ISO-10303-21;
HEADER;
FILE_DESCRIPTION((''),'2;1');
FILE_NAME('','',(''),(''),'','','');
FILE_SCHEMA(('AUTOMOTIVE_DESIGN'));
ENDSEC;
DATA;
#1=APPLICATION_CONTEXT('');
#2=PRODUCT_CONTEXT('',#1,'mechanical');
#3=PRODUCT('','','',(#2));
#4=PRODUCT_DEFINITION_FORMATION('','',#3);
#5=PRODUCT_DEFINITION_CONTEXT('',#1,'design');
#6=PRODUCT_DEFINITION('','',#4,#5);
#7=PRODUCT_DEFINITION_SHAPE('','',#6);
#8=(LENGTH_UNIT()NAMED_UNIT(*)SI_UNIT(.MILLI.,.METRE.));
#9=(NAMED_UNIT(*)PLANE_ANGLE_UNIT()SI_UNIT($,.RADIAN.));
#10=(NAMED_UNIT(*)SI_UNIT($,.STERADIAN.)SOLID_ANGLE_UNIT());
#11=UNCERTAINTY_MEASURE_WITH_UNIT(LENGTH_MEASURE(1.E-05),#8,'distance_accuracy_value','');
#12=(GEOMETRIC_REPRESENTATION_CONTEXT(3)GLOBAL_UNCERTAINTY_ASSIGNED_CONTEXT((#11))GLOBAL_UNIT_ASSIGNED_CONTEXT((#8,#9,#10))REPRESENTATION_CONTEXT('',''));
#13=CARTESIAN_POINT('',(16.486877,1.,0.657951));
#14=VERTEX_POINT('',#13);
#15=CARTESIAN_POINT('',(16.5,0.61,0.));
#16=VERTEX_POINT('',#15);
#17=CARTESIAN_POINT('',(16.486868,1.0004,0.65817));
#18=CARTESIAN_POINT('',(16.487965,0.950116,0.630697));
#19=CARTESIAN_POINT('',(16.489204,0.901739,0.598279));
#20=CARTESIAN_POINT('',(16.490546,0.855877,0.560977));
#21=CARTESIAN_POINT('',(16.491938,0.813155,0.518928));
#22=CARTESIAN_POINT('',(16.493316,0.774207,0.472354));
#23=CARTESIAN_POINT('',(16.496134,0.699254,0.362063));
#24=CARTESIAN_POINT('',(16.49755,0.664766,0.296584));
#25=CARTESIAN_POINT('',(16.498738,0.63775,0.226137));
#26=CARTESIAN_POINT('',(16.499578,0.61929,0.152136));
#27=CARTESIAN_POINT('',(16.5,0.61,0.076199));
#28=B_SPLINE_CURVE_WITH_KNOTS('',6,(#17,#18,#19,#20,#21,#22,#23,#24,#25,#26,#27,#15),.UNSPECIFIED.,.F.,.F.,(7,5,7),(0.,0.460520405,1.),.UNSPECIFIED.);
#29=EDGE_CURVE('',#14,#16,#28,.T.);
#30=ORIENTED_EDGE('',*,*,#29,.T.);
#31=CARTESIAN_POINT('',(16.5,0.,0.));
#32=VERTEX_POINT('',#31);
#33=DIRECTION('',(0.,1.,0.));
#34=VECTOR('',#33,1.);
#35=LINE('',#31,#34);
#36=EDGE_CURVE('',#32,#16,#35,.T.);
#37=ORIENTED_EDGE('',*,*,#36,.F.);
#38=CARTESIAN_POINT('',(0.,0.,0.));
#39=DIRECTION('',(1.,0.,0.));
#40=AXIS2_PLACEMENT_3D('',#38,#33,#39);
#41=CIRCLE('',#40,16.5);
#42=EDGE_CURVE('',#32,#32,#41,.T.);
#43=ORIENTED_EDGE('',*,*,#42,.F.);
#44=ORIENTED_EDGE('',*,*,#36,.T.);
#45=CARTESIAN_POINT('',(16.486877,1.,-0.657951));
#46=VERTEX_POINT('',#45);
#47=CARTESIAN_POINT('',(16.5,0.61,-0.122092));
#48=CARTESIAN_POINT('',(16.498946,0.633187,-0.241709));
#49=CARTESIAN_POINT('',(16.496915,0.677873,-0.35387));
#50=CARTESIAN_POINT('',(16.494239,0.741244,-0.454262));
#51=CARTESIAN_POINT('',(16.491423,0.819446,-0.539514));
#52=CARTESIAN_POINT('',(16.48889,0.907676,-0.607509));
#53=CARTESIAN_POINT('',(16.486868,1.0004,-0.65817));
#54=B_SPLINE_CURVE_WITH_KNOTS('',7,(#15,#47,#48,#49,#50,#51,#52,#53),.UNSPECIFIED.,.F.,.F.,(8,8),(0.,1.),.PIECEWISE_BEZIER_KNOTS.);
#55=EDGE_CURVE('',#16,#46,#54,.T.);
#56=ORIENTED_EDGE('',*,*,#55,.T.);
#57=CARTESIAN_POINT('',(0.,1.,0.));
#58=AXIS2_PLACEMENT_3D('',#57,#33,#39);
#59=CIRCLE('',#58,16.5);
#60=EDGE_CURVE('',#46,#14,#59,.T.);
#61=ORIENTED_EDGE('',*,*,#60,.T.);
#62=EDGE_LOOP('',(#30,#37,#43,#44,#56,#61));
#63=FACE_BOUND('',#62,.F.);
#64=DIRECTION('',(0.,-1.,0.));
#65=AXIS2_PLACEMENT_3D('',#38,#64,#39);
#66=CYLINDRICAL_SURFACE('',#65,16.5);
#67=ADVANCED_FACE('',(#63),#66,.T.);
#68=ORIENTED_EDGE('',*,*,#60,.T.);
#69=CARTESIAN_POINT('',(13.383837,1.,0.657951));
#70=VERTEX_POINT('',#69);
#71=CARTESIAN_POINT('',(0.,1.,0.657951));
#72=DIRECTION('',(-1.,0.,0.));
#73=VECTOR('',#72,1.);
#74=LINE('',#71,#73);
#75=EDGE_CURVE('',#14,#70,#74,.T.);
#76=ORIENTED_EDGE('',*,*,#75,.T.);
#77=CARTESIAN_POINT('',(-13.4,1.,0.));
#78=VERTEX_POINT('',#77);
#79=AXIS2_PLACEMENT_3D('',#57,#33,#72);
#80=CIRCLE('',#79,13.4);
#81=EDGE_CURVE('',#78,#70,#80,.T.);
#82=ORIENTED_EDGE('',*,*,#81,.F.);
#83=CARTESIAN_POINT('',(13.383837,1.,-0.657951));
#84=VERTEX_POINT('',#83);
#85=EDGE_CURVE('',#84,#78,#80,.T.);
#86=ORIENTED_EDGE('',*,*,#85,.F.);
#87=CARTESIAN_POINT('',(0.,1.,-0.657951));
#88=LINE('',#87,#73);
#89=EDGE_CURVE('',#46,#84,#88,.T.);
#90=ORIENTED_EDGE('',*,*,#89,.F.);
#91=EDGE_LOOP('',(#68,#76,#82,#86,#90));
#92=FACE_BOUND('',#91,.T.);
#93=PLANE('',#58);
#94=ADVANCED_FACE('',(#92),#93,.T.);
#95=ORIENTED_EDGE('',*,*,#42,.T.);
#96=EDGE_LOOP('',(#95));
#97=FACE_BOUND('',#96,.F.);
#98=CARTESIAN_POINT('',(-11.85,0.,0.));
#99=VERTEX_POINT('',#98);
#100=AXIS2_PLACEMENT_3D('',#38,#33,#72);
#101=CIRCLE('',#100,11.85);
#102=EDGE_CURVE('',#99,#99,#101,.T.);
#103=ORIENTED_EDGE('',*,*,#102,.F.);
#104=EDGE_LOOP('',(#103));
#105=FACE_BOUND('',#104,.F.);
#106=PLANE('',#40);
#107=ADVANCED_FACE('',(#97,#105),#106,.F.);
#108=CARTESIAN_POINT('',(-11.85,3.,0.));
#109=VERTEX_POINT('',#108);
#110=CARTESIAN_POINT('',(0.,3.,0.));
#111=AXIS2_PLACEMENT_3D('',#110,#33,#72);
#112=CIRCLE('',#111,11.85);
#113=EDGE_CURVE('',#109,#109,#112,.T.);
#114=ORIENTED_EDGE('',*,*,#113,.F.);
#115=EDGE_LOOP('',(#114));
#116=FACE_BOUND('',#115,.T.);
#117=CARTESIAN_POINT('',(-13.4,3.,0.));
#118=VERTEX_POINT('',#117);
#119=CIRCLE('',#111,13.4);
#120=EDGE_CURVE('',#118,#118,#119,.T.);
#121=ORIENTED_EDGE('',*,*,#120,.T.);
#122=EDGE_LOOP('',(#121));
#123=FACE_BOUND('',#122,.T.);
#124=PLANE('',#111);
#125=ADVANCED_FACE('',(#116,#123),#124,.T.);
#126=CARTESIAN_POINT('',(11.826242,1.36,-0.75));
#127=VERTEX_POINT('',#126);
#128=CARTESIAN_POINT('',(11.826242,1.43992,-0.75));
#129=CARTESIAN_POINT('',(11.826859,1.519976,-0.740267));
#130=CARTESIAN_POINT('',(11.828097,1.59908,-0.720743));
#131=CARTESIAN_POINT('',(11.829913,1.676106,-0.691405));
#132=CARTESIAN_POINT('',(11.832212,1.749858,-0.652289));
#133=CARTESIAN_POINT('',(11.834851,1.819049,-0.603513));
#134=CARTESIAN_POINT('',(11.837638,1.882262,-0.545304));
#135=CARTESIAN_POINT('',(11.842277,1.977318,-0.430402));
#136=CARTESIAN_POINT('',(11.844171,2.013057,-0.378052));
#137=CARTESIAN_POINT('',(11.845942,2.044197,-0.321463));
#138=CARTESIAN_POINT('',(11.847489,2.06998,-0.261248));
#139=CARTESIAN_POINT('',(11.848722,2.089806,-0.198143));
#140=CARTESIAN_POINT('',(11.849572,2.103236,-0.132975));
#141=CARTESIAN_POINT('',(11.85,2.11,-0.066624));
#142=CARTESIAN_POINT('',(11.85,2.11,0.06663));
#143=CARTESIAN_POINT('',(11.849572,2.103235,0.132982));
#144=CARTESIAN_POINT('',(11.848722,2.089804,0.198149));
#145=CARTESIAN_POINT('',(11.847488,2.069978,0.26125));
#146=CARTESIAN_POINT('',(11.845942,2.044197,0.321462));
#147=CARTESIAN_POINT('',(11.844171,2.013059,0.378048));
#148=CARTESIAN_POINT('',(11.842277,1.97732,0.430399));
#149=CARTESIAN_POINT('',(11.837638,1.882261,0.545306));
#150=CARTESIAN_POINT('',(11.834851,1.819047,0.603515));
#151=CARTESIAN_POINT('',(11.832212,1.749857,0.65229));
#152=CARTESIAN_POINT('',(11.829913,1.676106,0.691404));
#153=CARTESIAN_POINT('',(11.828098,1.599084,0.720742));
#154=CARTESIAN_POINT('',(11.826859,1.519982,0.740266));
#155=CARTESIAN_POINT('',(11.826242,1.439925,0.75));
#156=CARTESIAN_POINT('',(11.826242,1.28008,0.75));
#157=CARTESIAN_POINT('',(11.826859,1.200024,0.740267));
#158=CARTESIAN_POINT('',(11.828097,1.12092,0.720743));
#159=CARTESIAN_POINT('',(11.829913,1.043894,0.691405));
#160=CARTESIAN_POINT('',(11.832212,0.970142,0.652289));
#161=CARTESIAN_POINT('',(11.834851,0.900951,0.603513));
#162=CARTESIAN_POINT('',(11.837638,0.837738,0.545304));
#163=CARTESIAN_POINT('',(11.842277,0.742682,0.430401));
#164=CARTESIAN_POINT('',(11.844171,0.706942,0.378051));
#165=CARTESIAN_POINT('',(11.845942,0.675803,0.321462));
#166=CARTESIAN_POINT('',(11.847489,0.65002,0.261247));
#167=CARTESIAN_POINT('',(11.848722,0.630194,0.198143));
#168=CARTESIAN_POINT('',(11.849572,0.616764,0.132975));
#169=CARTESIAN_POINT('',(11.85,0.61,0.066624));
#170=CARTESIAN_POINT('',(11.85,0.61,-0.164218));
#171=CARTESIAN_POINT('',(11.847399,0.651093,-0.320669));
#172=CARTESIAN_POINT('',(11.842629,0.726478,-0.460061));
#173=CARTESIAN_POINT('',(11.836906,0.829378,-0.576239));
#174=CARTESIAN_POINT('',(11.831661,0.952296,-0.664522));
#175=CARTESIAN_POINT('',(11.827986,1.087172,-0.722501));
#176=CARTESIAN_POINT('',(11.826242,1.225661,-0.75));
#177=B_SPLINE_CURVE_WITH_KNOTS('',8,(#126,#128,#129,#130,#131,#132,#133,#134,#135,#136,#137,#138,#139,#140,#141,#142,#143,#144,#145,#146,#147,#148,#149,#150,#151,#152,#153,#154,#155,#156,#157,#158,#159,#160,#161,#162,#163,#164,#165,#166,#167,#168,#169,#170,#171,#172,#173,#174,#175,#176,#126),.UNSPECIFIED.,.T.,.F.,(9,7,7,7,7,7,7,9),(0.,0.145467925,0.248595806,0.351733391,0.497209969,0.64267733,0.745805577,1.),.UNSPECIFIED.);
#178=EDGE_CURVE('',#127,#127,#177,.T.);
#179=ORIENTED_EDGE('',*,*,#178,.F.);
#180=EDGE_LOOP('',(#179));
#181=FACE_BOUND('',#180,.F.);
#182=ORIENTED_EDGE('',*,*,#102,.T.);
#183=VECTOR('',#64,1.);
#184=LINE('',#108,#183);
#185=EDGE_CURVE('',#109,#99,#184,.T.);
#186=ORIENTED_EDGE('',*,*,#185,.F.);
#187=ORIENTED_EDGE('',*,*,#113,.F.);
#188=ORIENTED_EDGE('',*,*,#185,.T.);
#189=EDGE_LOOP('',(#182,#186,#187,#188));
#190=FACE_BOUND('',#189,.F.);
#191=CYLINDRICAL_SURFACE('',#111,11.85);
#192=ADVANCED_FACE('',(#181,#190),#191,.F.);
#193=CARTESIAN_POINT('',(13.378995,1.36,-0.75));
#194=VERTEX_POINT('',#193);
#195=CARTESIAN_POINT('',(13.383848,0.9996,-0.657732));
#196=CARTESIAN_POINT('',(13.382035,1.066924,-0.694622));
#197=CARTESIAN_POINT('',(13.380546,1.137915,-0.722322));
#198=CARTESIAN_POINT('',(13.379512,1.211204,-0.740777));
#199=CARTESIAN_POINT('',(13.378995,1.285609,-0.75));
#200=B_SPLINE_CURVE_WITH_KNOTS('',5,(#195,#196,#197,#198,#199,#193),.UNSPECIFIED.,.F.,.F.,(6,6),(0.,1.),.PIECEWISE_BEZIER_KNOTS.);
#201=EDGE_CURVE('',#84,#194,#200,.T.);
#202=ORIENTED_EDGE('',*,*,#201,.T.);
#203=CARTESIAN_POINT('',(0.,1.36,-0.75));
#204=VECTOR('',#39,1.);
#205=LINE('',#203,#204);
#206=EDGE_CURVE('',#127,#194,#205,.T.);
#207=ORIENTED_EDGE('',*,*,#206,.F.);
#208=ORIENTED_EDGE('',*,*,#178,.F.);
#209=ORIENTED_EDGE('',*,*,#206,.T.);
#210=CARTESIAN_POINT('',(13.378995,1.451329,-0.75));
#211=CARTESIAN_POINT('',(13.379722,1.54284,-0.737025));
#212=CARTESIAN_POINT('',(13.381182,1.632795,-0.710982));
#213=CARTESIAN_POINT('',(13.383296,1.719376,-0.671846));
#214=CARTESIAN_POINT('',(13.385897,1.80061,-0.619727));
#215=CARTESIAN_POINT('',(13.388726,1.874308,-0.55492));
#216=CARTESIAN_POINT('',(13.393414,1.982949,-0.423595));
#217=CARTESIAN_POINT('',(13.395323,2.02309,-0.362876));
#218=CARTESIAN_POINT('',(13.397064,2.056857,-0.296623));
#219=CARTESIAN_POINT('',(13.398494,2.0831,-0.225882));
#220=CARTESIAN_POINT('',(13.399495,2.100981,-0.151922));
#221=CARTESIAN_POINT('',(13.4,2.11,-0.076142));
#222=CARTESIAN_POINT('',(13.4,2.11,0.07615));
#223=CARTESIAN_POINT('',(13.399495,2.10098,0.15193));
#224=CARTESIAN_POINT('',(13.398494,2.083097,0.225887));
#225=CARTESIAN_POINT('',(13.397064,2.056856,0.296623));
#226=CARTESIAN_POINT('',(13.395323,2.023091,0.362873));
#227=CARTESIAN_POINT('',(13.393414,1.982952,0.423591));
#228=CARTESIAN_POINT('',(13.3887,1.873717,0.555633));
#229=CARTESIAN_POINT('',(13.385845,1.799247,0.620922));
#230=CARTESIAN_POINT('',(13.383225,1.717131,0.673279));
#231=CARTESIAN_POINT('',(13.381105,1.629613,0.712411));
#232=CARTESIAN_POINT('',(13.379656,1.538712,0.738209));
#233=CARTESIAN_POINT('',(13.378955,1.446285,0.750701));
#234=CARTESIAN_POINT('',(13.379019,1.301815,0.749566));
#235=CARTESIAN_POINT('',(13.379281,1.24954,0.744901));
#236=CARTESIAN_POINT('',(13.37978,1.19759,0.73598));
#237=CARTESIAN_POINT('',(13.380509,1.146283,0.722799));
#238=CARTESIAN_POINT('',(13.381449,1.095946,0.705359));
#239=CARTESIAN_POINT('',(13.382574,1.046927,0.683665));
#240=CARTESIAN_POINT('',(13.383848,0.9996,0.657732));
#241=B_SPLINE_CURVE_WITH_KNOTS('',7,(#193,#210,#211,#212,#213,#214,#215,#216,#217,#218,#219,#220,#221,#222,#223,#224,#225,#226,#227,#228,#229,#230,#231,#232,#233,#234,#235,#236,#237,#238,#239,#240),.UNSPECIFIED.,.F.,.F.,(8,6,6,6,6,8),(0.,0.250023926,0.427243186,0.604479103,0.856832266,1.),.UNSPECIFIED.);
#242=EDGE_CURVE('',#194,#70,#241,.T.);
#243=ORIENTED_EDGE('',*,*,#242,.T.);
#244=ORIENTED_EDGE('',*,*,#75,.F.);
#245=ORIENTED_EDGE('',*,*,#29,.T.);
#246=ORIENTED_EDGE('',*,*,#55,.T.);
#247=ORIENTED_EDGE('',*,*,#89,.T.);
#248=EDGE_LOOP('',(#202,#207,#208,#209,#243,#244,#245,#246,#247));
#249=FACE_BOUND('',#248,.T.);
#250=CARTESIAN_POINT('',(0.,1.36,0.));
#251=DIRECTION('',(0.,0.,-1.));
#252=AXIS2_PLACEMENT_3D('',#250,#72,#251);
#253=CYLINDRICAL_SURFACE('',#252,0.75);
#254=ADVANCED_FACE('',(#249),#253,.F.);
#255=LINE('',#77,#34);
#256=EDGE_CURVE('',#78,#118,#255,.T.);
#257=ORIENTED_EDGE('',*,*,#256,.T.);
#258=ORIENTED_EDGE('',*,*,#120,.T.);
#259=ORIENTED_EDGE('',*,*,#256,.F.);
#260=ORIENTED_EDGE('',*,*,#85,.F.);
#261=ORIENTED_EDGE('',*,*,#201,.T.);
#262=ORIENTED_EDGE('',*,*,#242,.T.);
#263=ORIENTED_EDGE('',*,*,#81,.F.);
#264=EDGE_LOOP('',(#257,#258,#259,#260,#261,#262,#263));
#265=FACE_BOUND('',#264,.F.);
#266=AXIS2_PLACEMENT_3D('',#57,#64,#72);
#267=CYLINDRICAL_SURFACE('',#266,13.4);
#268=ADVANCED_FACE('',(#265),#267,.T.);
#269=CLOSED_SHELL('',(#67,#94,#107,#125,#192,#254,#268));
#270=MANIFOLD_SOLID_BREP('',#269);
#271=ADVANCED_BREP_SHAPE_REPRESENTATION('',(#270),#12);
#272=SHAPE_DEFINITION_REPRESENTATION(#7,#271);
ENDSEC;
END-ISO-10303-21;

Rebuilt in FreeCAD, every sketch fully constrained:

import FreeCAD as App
import Part
import Sketcher

doc = App.newDocument("Part")
body = doc.addObject("PartDesign::Body", "Body")

# Sketch on XZ plane
sketch1 = doc.addObject("Sketcher::SketchObject", "Sketch")
body.addObject(sketch1)
sketch1.AttachmentSupport = (doc.XZ_Plane, [""])
sketch1.MapMode = "FlatFace"
sketch1.addGeometry(Part.Circle(App.Vector(0, 0, 0), App.Vector(0, 0, 1), 16.5), False)
sketch1.addConstraint(Sketcher.Constraint("Coincident", 0, 3, -1, 1))
sketch1.addConstraint(Sketcher.Constraint("Diameter", 0, 33.0))
pad1 = doc.addObject("PartDesign::Pad", "Pad")
body.addObject(pad1)
pad1.Profile = sketch1
pad1.Length = 1
pad1.Reversed = True

# Sketch on XZ plane
sketch2 = doc.addObject("Sketcher::SketchObject", "Sketch001")
body.addObject(sketch2)
sketch2.AttachmentSupport = (doc.XZ_Plane, [""])
sketch2.MapMode = "FlatFace"
sketch2.AttachmentOffset = App.Placement(App.Vector(0, 0, -1), App.Rotation())
sketch2.addGeometry(Part.Circle(App.Vector(0, 0, 0), App.Vector(0, 0, 1), 13.4), False)
sketch2.addConstraint(Sketcher.Constraint("Coincident", 0, 3, -1, 1))
sketch2.addConstraint(Sketcher.Constraint("Diameter", 0, 26.8))
pad2 = doc.addObject("PartDesign::Pad", "Pad001")
body.addObject(pad2)
pad2.Profile = sketch2
pad2.Length = 2
pad2.Reversed = True

# Sketch on XZ plane
sketch3 = doc.addObject("Sketcher::SketchObject", "Sketch002")
body.addObject(sketch3)
sketch3.AttachmentSupport = (doc.XZ_Plane, [""])
sketch3.MapMode = "FlatFace"
sketch3.AttachmentOffset = App.Placement(App.Vector(0, 0, -3), App.Rotation())
sketch3.addGeometry(Part.Circle(App.Vector(0, 0, 0), App.Vector(0, 0, 1), 11.85), False)
sketch3.addConstraint(Sketcher.Constraint("Coincident", 0, 3, -1, 1))
sketch3.addConstraint(Sketcher.Constraint("Diameter", 0, 23.7))
pocket1 = doc.addObject("PartDesign::Pocket", "Pocket")
body.addObject(pocket1)
pocket1.Profile = sketch3
pocket1.Type = "ThroughAll"
pocket1.Reversed = True

# Sketch on YZ plane
sketch4 = doc.addObject("Sketcher::SketchObject", "Sketch003")
body.addObject(sketch4)
sketch4.AttachmentSupport = (doc.YZ_Plane, [""])
sketch4.MapMode = "FlatFace"
sketch4.addGeometry(Part.Circle(App.Vector(1.36, 0, 0), App.Vector(0, 0, 1), 0.75), False)
sketch4.addConstraint(Sketcher.Constraint("PointOnObject", 0, 3, -1))
sketch4.addConstraint(Sketcher.Constraint("Diameter", 0, 1.5))
sketch4.addConstraint(Sketcher.Constraint("DistanceX", -1, 1, 0, 3, 1.36))
pocket2 = doc.addObject("PartDesign::Pocket", "Pocket001")
body.addObject(pocket2)
pocket2.Profile = sketch4
pocket2.Type = "ThroughAll"
pocket2.Reversed = True

doc.recompute()
